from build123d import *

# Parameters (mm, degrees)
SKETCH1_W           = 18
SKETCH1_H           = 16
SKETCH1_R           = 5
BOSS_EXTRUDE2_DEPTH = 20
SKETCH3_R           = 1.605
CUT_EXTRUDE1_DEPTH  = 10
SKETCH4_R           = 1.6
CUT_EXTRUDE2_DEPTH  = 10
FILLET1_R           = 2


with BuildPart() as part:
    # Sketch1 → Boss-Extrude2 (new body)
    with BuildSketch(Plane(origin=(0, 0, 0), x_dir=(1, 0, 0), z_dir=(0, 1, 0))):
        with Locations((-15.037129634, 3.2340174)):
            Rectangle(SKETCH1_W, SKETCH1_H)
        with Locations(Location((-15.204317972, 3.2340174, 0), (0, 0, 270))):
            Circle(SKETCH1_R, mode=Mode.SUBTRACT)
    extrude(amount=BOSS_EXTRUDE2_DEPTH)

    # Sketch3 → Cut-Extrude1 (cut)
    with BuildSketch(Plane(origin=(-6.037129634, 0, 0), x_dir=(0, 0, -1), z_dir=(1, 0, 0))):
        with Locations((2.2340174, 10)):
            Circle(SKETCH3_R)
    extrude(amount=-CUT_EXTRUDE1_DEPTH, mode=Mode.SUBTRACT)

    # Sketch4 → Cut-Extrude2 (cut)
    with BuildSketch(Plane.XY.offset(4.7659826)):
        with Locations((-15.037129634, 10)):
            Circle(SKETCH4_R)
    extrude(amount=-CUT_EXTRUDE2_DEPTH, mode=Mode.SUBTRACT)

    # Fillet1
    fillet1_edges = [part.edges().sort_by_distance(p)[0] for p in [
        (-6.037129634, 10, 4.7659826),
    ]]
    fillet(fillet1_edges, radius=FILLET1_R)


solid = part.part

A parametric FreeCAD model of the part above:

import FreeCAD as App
import Part
import Sketcher

V = App.Vector
Q = App.Units.Quantity


def edges_at(feature, points):
    """Names of the edges that pass closest to the given points."""
    edges = feature.Shape.Edges
    near = lambda p: min(range(len(edges)), key=lambda i: edges[i].distToShape(Part.Vertex(*p))[0])
    return sorted({f"Edge{near(p) + 1}" for p in points})

doc = App.newDocument("Part")
body = doc.addObject("PartDesign::Body", "Body")

# Sketch on XZ plane
sketch1 = body.newObject("Sketcher::SketchObject", "Sketch")
sketch1.AttachmentSupport = (doc.getObject("XZ_Plane"), [""])
sketch1.MapMode = "FlatFace"
sketch1.addGeometry([
    Part.LineSegment(V(-24, -11, 0), V(-24, 5, 0)),  # 0
    Part.LineSegment(V(-24, 5, 0), V(-6, 5, 0)),  # 1
    Part.LineSegment(V(-6, 5, 0), V(-6, -11, 0)),  # 2
    Part.LineSegment(V(-6, -11, 0), V(-24, -11, 0)),  # 3
    Part.Circle(V(-15, -3, 0), V(0, 0, 1), 5),  # 4
], False)
sketch1.addConstraint([
    Sketcher.Constraint("Coincident", 0, 2, 1, 1),
    Sketcher.Constraint("Coincident", 1, 2, 2, 1),
    Sketcher.Constraint("Coincident", 2, 2, 3, 1),
    Sketcher.Constraint("Coincident", 3, 2, 0, 1),
    Sketcher.Constraint("Vertical", 0),
    Sketcher.Constraint("Horizontal", 1),
    Sketcher.Constraint("Vertical", 2),
    Sketcher.Constraint("Horizontal", 3),
    Sketcher.Constraint("Diameter", 4, Q("10 mm")),
    Sketcher.Constraint("DistanceX", 1, 1, 1, 2, Q("18 mm")),
    Sketcher.Constraint("DistanceY", 0, 1, 0, 2, Q("16 mm")),
    Sketcher.Constraint("DistanceY", 4, 3, 0, 2, Q("8 mm")),
    Sketcher.Constraint("DistanceX", 0, 2, -1, 1, Q("24.03713 mm")),
    Sketcher.Constraint("DistanceX", 0, 2, 4, 3, Q("8.832812 mm")),
    Sketcher.Constraint("DistanceY", 4, 3, -1, 1, Q("3.234017 mm")),
])
pad1 = body.newObject("PartDesign::Pad", "Pad")
pad1.Profile = sketch1
pad1.Length = 20
pad1.Reversed = True

# Sketch on YZ plane
sketch2 = body.newObject("Sketcher::SketchObject", "Sketch001")
sketch2.AttachmentSupport = (doc.getObject("YZ_Plane"), [""])
sketch2.MapMode = "FlatFace"
sketch2.AttachmentOffset = App.Placement(V(0, 0, -6.03713), App.Rotation())
sketch2.addGeometry(Part.Circle(V(10, -2.2, 0), V(0, 0, 1), 1.6), False)
sketch2.addConstraint([
    Sketcher.Constraint("Diameter", 0, Q("3.21 mm")),
    Sketcher.Constraint("DistanceX", -1, 1, 0, 3, Q("10 mm")),
    Sketcher.Constraint("DistanceY", 0, 3, -1, 1, Q("2.234017 mm")),
])
pocket1 = body.newObject("PartDesign::Pocket", "Pocket")
pocket1.Profile = sketch2
pocket1.Length = 10

# Sketch on XY plane
sketch3 = body.newObject("Sketcher::SketchObject", "Sketch002")
sketch3.AttachmentSupport = (doc.getObject("XY_Plane"), [""])
sketch3.MapMode = "FlatFace"
sketch3.AttachmentOffset = App.Placement(V(0, 0, 4.765983), App.Rotation())
sketch3.addGeometry(Part.Circle(V(-15, 10, 0), V(0, 0, 1), 1.6), False)
sketch3.addConstraint([
    Sketcher.Constraint("Diameter", 0, Q("3.2 mm")),
    Sketcher.Constraint("DistanceY", -1, 1, 0, 3, Q("10 mm")),
    Sketcher.Constraint("DistanceX", 0, 3, -1, 1, Q("15.03713 mm")),
])
pocket2 = body.newObject("PartDesign::Pocket", "Pocket001")
pocket2.Profile = sketch3
pocket2.Length = 10
doc.recompute()

fillet = body.newObject("PartDesign::Fillet", "Fillet")
fillet.Base = (pocket2, edges_at(pocket2, [(-6.037, 10, 4.766)]))
fillet.Radius = 2

doc.recompute()
